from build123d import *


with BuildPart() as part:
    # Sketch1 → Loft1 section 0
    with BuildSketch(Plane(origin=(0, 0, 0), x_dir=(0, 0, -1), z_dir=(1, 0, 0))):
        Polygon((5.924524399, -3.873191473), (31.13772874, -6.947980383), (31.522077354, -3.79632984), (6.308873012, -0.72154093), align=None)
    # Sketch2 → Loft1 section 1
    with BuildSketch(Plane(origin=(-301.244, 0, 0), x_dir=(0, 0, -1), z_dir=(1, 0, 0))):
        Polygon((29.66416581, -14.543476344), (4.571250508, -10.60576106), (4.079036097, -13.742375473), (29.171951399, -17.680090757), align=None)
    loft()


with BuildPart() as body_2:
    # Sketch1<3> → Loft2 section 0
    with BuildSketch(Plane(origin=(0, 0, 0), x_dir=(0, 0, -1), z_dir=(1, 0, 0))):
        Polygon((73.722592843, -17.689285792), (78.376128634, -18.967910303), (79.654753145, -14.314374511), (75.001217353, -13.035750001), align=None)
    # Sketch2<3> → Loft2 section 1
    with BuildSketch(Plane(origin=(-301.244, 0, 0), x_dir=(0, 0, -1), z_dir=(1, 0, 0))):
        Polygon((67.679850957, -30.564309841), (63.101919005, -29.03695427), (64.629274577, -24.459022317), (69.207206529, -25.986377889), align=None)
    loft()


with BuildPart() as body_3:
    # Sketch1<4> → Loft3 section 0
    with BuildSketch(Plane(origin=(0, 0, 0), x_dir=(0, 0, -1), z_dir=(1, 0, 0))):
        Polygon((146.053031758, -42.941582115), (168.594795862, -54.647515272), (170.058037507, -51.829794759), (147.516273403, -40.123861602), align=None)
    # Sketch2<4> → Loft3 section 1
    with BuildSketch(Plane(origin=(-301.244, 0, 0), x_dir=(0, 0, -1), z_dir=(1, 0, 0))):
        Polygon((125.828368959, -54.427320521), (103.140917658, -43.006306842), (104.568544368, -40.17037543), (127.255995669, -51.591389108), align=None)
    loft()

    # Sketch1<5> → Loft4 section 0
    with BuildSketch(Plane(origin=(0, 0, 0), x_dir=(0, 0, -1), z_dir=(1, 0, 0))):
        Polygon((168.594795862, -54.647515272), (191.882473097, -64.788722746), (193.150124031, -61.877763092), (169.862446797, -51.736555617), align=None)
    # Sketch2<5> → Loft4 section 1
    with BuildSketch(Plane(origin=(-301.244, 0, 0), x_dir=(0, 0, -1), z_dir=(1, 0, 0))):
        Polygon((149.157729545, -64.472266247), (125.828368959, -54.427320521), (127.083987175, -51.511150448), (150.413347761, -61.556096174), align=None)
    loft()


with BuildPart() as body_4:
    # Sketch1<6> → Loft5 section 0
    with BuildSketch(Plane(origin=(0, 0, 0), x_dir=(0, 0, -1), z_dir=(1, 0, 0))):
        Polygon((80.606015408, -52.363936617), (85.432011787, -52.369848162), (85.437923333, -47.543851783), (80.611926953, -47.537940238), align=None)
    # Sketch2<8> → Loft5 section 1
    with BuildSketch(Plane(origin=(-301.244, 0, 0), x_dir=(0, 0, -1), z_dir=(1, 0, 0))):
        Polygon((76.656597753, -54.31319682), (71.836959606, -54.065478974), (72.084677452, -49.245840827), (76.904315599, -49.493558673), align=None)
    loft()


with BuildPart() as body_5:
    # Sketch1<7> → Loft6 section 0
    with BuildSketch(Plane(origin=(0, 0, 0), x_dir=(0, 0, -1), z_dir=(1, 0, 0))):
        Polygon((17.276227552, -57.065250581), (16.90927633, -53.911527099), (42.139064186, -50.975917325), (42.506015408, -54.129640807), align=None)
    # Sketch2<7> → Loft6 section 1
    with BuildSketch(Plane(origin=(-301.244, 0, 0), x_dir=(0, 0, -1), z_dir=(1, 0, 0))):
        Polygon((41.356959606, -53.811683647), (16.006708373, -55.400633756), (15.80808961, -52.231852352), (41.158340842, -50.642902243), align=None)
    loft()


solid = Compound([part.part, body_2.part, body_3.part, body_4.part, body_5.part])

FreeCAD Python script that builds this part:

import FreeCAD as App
import Part
import Sketcher
Q = App.Units.Quantity


def add_polygon(sketch, points):
    """Adds a closed chain of lines whose ends are joined by coincident constraints."""
    first, n = sketch.GeometryCount, len(points)
    for a, b in zip(points, points[1:] + points[:1]):
        sketch.addGeometry(Part.LineSegment(App.Vector(*a, 0), App.Vector(*b, 0)), False)
    for i in range(n):
        sketch.addConstraint(Sketcher.Constraint("Coincident", first + i, 2, first + (i + 1) % n, 1))

doc = App.newDocument("Part")
params = doc.addObject("Spreadsheet::Sheet", "Params")
for row, (alias, value) in enumerate([
    ("sketch1_length", "1 in"),
    ("sketch1_length2", "1 in"),
    ("sketch1_length3", "0.125 in"),
    ("sketch1_length4", "0.125 in"),
    ("sketch2_length", "1 in"),
    ("sketch2_length2", "0.125 in"),
    ("sketch3_length", "0.19 in"),
    ("sketch4_length", "0.19 in"),
    ("sketch5_length", "1 in"),
    ("sketch5_length2", "0.125 in"),
    ("sketch6_length", "1 in"),
    ("sketch6_length2", "0.125 in"),
    ("sketch7_length", "1 in"),
    ("sketch7_length2", "0.125 in"),
    ("sketch8_length", "1 in"),
    ("sketch8_length2", "0.125 in"),
    ("sketch9_length", "0.19 in"),
    ("sketch10_length", "0.19 in"),
    ("sketch11_length", "1 in"),
    ("sketch11_length2", "0.125 in"),
    ("sketch12_length", "1 in"),
    ("sketch12_length2", "0.125 in"),
], start=1):
    params.set(f"A{row}", alias)
    params.set(f"B{row}", "=" + value)
    params.setAlias(f"B{row}", alias)

body = doc.addObject("PartDesign::Body", "Body")

sketch1 = body.newObject("Sketcher::SketchObject", "Sketch")
sketch1.AttachmentSupport = (doc.getObject("YZ_Plane"), [""])
sketch1.MapMode = "FlatFace"
add_polygon(sketch1, [(-3.873191, -5.924524), (-6.94798, -31.137729), (-3.79633, -31.522077), (-0.721541, -6.308873)])
sketch1.addConstraint([
    Sketcher.Constraint("Distance", 0, Q("1 in")),
    Sketcher.Constraint("Distance", 2, Q("1 in")),
    Sketcher.Constraint("Distance", 1, Q("0.125 in")),
    Sketcher.Constraint("Distance", 3, Q("0.125 in")),
    Sketcher.Constraint("DistanceX", 0, 2, -1, 1, Q("6.94798 mm")),
    Sketcher.Constraint("DistanceY", 0, 2, -1, 1, Q("31.137729 mm")),
    Sketcher.Constraint("DistanceX", 1, 2, -1, 1, Q("3.79633 mm")),
    Sketcher.Constraint("DistanceX", 2, 2, -1, 1, Q("0.721541 mm")),
])
sketch1.setExpression("Constraints[4]", "Params.sketch1_length")
sketch1.setExpression("Constraints[5]", "Params.sketch1_length2")
sketch1.setExpression("Constraints[6]", "Params.sketch1_length3")
sketch1.setExpression("Constraints[7]", "Params.sketch1_length4")

sketch2 = body.newObject("Sketcher::SketchObject", "Sketch001")
sketch2.AttachmentSupport = (doc.getObject("YZ_Plane"), [""])
sketch2.MapMode = "FlatFace"
sketch2.AttachmentOffset = App.Placement(App.Vector(0, 0, -11.86 * 25.4), App.Rotation())
add_polygon(sketch2, [(-14.5, -29.7), (-10.6, -4.6), (-13.7, -4.1), (-17.7, -29.2)])
sketch2.addConstraint([
    Sketcher.Constraint("Perpendicular", 0, 1),
    Sketcher.Constraint("Perpendicular", 1, 2),
    Sketcher.Constraint("Perpendicular", 2, 3),
    Sketcher.Constraint("Distance", 0, Q("1 in")),
    Sketcher.Constraint("Distance", 1, Q("0.125 in")),
    Sketcher.Constraint("DistanceY", 2, 2, 0, 2, Q("24.600701 mm")),
    Sketcher.Constraint("DistanceX", 0, 2, -1, 1, Q("10.605761 mm")),
    Sketcher.Constraint("DistanceY", 0, 2, -1, 1, Q("4.571251 mm")),
])
sketch2.setExpression("Constraints[7]", "Params.sketch2_length")
sketch2.setExpression("Constraints[8]", "Params.sketch2_length2")

additiveloft = body.newObject("PartDesign::AdditiveLoft", "AdditiveLoft")
additiveloft.Profile = sketch1
additiveloft.Sections = [sketch2]
body2 = doc.addObject("PartDesign::Body", "Body001")

sketch3 = body2.newObject("Sketcher::SketchObject", "Sketch002")
sketch3.AttachmentSupport = (doc.getObject("YZ_Plane001"), [""])
sketch3.MapMode = "FlatFace"
add_polygon(sketch3, [(-17.7, -73.7), (-19, -78.4), (-14.3, -79.7), (-13, -75)])
sketch3.addConstraint([
    Sketcher.Constraint("Perpendicular", 0, 1),
    Sketcher.Constraint("Perpendicular", 1, 2),
    Sketcher.Constraint("Perpendicular", 2, 3),
    Sketcher.Constraint("Equal", 0, 1),
    Sketcher.Constraint("Distance", 0, Q("0.19 in")),
    Sketcher.Constraint("DistanceX", 0, 2, -1, 1, Q("18.96791 mm")),
    Sketcher.Constraint("DistanceY", 0, 2, -1, 1, Q("78.376129 mm")),
    Sketcher.Constraint("DistanceX", 2, 2, -1, 1, Q("13.03575 mm")),
])
sketch3.setExpression("Constraints[8]", "Params.sketch3_length")

sketch4 = body2.newObject("Sketcher::SketchObject", "Sketch003")
sketch4.AttachmentSupport = (doc.getObject("YZ_Plane001"), [""])
sketch4.MapMode = "FlatFace"
sketch4.AttachmentOffset = App.Placement(App.Vector(0, 0, -11.86 * 25.4), App.Rotation())
add_polygon(sketch4, [(-29, -63.1), (-30.6, -67.7), (-26, -69.2), (-24.5, -64.6)])
sketch4.addConstraint([
    Sketcher.Constraint("Perpendicular", 0, 1),
    Sketcher.Constraint("Perpendicular", 1, 2),
    Sketcher.Constraint("Perpendicular", 2, 3),
    Sketcher.Constraint("Equal", 0, 1),
    Sketcher.Constraint("Distance", 0, Q("0.19 in")),
    Sketcher.Constraint("DistanceX", 0, 2, -1, 1, Q("30.56431 mm")),
    Sketcher.Constraint("DistanceY", 0, 2, -1, 1, Q("67.679851 mm")),
    Sketcher.Constraint("DistanceY", 3, 2, -1, 1, Q("63.101919 mm")),
])
sketch4.setExpression("Constraints[8]", "Params.sketch4_length")

additiveloft2 = body2.newObject("PartDesign::AdditiveLoft", "AdditiveLoft001")
additiveloft2.Profile = sketch3
additiveloft2.Sections = [sketch4]
body3 = doc.addObject("PartDesign::Body", "Body002")

sketch5 = body3.newObject("Sketcher::SketchObject", "Sketch004")
sketch5.AttachmentSupport = (doc.getObject("YZ_Plane002"), [""])
sketch5.MapMode = "FlatFace"
add_polygon(sketch5, [(-42.9, -146.1), (-54.6, -168.6), (-51.8, -170.1), (-40.1, -147.5)])
sketch5.addConstraint([
    Sketcher.Constraint("Perpendicular", 0, 1),
    Sketcher.Constraint("Perpendicular", 1, 2),
    Sketcher.Constraint("Perpendicular", 2, 3),
    Sketcher.Constraint("Distance", 0, Q("1 in")),
    Sketcher.Constraint("Distance", 1, Q("0.125 in")),
    Sketcher.Constraint("DistanceX", 2, 2, -1, 1, Q("40.123862 mm")),
    Sketcher.Constraint("DistanceY", 3, 2, -1, 1, Q("146.053032 mm")),
    Sketcher.Constraint("DistanceX", 0, 2, 1, 2, Q("2.817721 mm")),
])
sketch5.setExpression("Constraints[7]", "Params.sketch5_length")
sketch5.setExpression("Constraints[8]", "Params.sketch5_length2")

sketch6 = body3.newObject("Sketcher::SketchObject", "Sketch005")
sketch6.AttachmentSupport = (doc.getObject("YZ_Plane002"), [""])
sketch6.MapMode = "FlatFace"
sketch6.AttachmentOffset = App.Placement(App.Vector(0, 0, -11.86 * 25.4), App.Rotation())
add_polygon(sketch6, [(-43, -103.1), (-54.4, -125.8), (-51.6, -127.3), (-40.2, -104.6)])
sketch6.addConstraint([
    Sketcher.Constraint("Perpendicular", 0, 1),
    Sketcher.Constraint("Perpendicular", 1, 2),
    Sketcher.Constraint("Perpendicular", 2, 3),
    Sketcher.Constraint("Distance", 0, Q("1 in")),
    Sketcher.Constraint("Distance", 1, Q("0.125 in")),
    Sketcher.Constraint("DistanceX", 0, 2, -1, 1, Q("54.427321 mm")),
    Sketcher.Constraint("DistanceY", 0, 2, -1, 1, Q("125.828369 mm")),
    Sketcher.Constraint("DistanceX", 1, 2, -1, 1, Q("51.591389 mm")),
])
sketch6.setExpression("Constraints[7]", "Params.sketch6_length")
sketch6.setExpression("Constraints[8]", "Params.sketch6_length2")

additiveloft3 = body3.newObject("PartDesign::AdditiveLoft", "AdditiveLoft002")
additiveloft3.Profile = sketch5
additiveloft3.Sections = [sketch6]

sketch7 = body3.newObject("Sketcher::SketchObject", "Sketch006")
sketch7.AttachmentSupport = (doc.getObject("YZ_Plane002"), [""])
sketch7.MapMode = "FlatFace"
add_polygon(sketch7, [(-54.6, -168.6), (-64.8, -191.9), (-61.9, -193.2), (-51.7, -169.9)])
sketch7.addConstraint([
    Sketcher.Constraint("Perpendicular", 0, 1),
    Sketcher.Constraint("Perpendicular", 1, 2),
    Sketcher.Constraint("Perpendicular", 2, 3),
    Sketcher.Constraint("Distance", 0, Q("1 in")),
    Sketcher.Constraint("Distance", 1, Q("0.125 in")),
    Sketcher.Constraint("DistanceX", 0, 2, 1, 2, Q("2.91096 mm")),
    Sketcher.Constraint("DistanceX", 0, 2, -1, 1, Q("64.788723 mm")),
    Sketcher.Constraint("DistanceY", 0, 2, -1, 1, Q("191.882473 mm")),
])
sketch7.setExpression("Constraints[7]", "Params.sketch7_length")
sketch7.setExpression("Constraints[8]", "Params.sketch7_length2")

sketch8 = body3.newObject("Sketcher::SketchObject", "Sketch007")
sketch8.AttachmentSupport = (doc.getObject("YZ_Plane002"), [""])
sketch8.MapMode = "FlatFace"
sketch8.AttachmentOffset = App.Placement(App.Vector(0, 0, -11.86 * 25.4), App.Rotation())
add_polygon(sketch8, [(-54.4, -125.8), (-64.5, -149.2), (-61.6, -150.4), (-51.5, -127.1)])
sketch8.addConstraint([
    Sketcher.Constraint("Perpendicular", 0, 1),
    Sketcher.Constraint("Perpendicular", 1, 2),
    Sketcher.Constraint("Perpendicular", 2, 3),
    Sketcher.Constraint("Distance", 0, Q("1 in")),
    Sketcher.Constraint("Distance", 1, Q("0.125 in")),
    Sketcher.Constraint("DistanceY", 0, 2, -1, 1, Q("149.15773 mm")),
    Sketcher.Constraint("DistanceX", 2, 2, -1, 1, Q("51.51115 mm")),
    Sketcher.Constraint("DistanceX", 3, 2, -1, 1, Q("54.427321 mm")),
])
sketch8.setExpression("Constraints[7]", "Params.sketch8_length")
sketch8.setExpression("Constraints[8]", "Params.sketch8_length2")

additiveloft4 = body3.newObject("PartDesign::AdditiveLoft", "AdditiveLoft003")
additiveloft4.Profile = sketch7
additiveloft4.Sections = [sketch8]
body4 = doc.addObject("PartDesign::Body", "Body003")

sketch9 = body4.newObject("Sketcher::SketchObject", "Sketch008")
sketch9.AttachmentSupport = (doc.getObject("YZ_Plane003"), [""])
sketch9.MapMode = "FlatFace"
add_polygon(sketch9, [(-52.4, -80.6), (-52.4, -85.4), (-47.5, -85.4), (-47.5, -80.6)])
sketch9.addConstraint([
    Sketcher.Constraint("Perpendicular", 0, 1),
    Sketcher.Constraint("Perpendicular", 1, 2),
    Sketcher.Constraint("Perpendicular", 2, 3),
    Sketcher.Constraint("Equal", 0, 1),
    Sketcher.Constraint("Distance", 0, Q("0.19 in")),
    Sketcher.Constraint("DistanceX", 0, 2, -1, 1, Q("52.369848 mm")),
    Sketcher.Constraint("DistanceY", 0, 2, -1, 1, Q("85.432012 mm")),
    Sketcher.Constraint("DistanceX", 2, 2, -1, 1, Q("47.53794 mm")),
])
sketch9.setExpression("Constraints[8]", "Params.sketch9_length")

sketch10 = body4.newObject("Sketcher::SketchObject", "Sketch009")
sketch10.AttachmentSupport = (doc.getObject("YZ_Plane003"), [""])
sketch10.MapMode = "FlatFace"
sketch10.AttachmentOffset = App.Placement(App.Vector(0, 0, -11.86 * 25.4), App.Rotation())
add_polygon(sketch10, [(-54.1, -71.8), (-54.3, -76.7), (-49.5, -76.9), (-49.2, -72.1)])
sketch10.addConstraint([
    Sketcher.Constraint("Perpendicular", 0, 1),
    Sketcher.Constraint("Perpendicular", 1, 2),
    Sketcher.Constraint("Perpendicular", 2, 3),
    Sketcher.Constraint("Equal", 0, 1),
    Sketcher.Constraint("Distance", 0, Q("0.19 in")),
    Sketcher.Constraint("DistanceX", 1, 2, -1, 1, Q("49.493559 mm")),
    Sketcher.Constraint("DistanceX", 2, 2, -1, 1, Q("49.245841 mm")),
    Sketcher.Constraint("DistanceY", 3, 2, -1, 1, Q("71.83696 mm")),
])
sketch10.setExpression("Constraints[8]", "Params.sketch10_length")

additiveloft5 = body4.newObject("PartDesign::AdditiveLoft", "AdditiveLoft004")
additiveloft5.Profile = sketch9
additiveloft5.Sections = [sketch10]
body5 = doc.addObject("PartDesign::Body", "Body004")

sketch11 = body5.newObject("Sketcher::SketchObject", "Sketch010")
sketch11.AttachmentSupport = (doc.getObject("YZ_Plane004"), [""])
sketch11.MapMode = "FlatFace"
add_polygon(sketch11, [(-53.9, -16.9), (-57.1, -17.3), (-54.1, -42.5), (-51, -42.1)])
sketch11.addConstraint([
    Sketcher.Constraint("Perpendicular", 0, 1),
    Sketcher.Constraint("Perpendicular", 1, 2),
    Sketcher.Constraint("Perpendicular", 2, 3),
    Sketcher.Constraint("Distance", 1, Q("1 in")),
    Sketcher.Constraint("Distance", 0, Q("0.125 in")),
    Sketcher.Constraint("DistanceX", 0, 2, -1, 1, Q("57.065251 mm")),
    Sketcher.Constraint("DistanceX", 1, 2, -1, 1, Q("54.129641 mm")),
    Sketcher.Constraint("DistanceY", 0, 2, -1, 1, Q("17.276228 mm")),
])
sketch11.setExpression("Constraints[7]", "Params.sketch11_length")
sketch11.setExpression("Constraints[8]", "Params.sketch11_length2")

sketch12 = body5.newObject("Sketcher::SketchObject", "Sketch011")
sketch12.AttachmentSupport = (doc.getObject("YZ_Plane004"), [""])
sketch12.MapMode = "FlatFace"
sketch12.AttachmentOffset = App.Placement(App.Vector(0, 0, -11.86 * 25.4), App.Rotation())
add_polygon(sketch12, [(-55.4, -16), (-53.8, -41.4), (-50.6, -41.2), (-52.2, -15.8)])
sketch12.addConstraint([
    Sketcher.Constraint("Perpendicular", 0, 1),
    Sketcher.Constraint("Perpendicular", 1, 2),
    Sketcher.Constraint("Perpendicular", 2, 3),
    Sketcher.Constraint("Distance", 0, Q("1 in")),
    Sketcher.Constraint("Distance", 1, Q("0.125 in")),
    Sketcher.Constraint("DistanceY", 0, 2, -1, 1, Q("41.35696 mm")),
    Sketcher.Constraint("DistanceY", 1, 2, -1, 1, Q("41.158341 mm")),
    Sketcher.Constraint("DistanceX", 0, 2, -1, 1, Q("53.811684 mm")),
])
sketch12.setExpression("Constraints[7]", "Params.sketch12_length")
sketch12.setExpression("Constraints[8]", "Params.sketch12_length2")

additiveloft6 = body5.newObject("PartDesign::AdditiveLoft", "AdditiveLoft005")
additiveloft6.Profile = sketch11
additiveloft6.Sections = [sketch12]

doc.recompute()
